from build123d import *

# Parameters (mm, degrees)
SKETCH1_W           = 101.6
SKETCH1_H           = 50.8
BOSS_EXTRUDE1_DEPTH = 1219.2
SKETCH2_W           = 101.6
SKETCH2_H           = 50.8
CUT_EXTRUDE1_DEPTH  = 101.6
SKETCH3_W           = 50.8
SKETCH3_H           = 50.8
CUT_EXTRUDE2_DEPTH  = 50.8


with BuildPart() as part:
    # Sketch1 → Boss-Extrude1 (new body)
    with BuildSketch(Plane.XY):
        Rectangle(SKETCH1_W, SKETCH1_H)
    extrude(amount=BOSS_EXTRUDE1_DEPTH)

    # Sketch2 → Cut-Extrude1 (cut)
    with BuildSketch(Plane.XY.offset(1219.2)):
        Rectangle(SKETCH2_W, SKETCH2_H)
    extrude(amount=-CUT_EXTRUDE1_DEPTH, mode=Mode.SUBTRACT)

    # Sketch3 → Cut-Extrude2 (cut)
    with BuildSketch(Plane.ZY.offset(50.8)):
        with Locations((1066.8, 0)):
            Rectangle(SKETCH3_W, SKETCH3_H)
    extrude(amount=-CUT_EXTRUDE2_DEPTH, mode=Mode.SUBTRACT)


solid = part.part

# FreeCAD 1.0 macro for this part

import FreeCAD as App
import Part
import Sketcher
Q = App.Units.Quantity

doc = App.newDocument("Part")
body = doc.addObject("PartDesign::Body", "Body")

# Sketch on XY plane
sketch1 = body.newObject("Sketcher::SketchObject", "Sketch")
sketch1.AttachmentSupport = (doc.getObject("XY_Plane"), [""])
sketch1.MapMode = "FlatFace"
sketch1.addGeometry([
    Part.LineSegment(App.Vector(-50.8, 25.4, 0), App.Vector(-50.8, -25.4, 0)),
    Part.LineSegment(App.Vector(-50.8, -25.4, 0), App.Vector(50.8, -25.4, 0)),
    Part.LineSegment(App.Vector(50.8, -25.4, 0), App.Vector(50.8, 25.4, 0)),
    Part.LineSegment(App.Vector(50.8, 25.4, 0), App.Vector(-50.8, 25.4, 0)),
], False)
sketch1.addConstraint([
    Sketcher.Constraint("Coincident", 0, 2, 1, 1),
    Sketcher.Constraint("Coincident", 1, 2, 2, 1),
    Sketcher.Constraint("Coincident", 2, 2, 3, 1),
    Sketcher.Constraint("Coincident", 3, 2, 0, 1),
    Sketcher.Constraint("Vertical", 0),
    Sketcher.Constraint("Horizontal", 1),
    Sketcher.Constraint("Vertical", 2),
    Sketcher.Constraint("Horizontal", 3),
    Sketcher.Constraint("Symmetric", 0, 2, 2, 2, -1, 1),
    Sketcher.Constraint("DistanceX", 1, 1, 1, 2, Q("4 in")),
    Sketcher.Constraint("DistanceY", 0, 2, 0, 1, Q("2 in")),
])
pad1 = body.newObject("PartDesign::Pad", "Pad")
pad1.Profile = sketch1
pad1.Length = Q("48 in")

# Sketch on XY plane
sketch2 = body.newObject("Sketcher::SketchObject", "Sketch001")
sketch2.AttachmentSupport = (doc.getObject("XY_Plane"), [""])
sketch2.MapMode = "FlatFace"
sketch2.AttachmentOffset = App.Placement(App.Vector(0, 0, 48 * 25.4), App.Rotation())
sketch2.addGeometry([
    Part.LineSegment(App.Vector(-50.8, 25.4, 0), App.Vector(-50.8, -25.4, 0)),
    Part.LineSegment(App.Vector(-50.8, -25.4, 0), App.Vector(50.8, -25.4, 0)),
    Part.LineSegment(App.Vector(50.8, -25.4, 0), App.Vector(50.8, 25.4, 0)),
    Part.LineSegment(App.Vector(50.8, 25.4, 0), App.Vector(-50.8, 25.4, 0)),
], False)
sketch2.addConstraint([
    Sketcher.Constraint("Coincident", 0, 2, 1, 1),
    Sketcher.Constraint("Coincident", 1, 2, 2, 1),
    Sketcher.Constraint("Coincident", 2, 2, 3, 1),
    Sketcher.Constraint("Coincident", 3, 2, 0, 1),
    Sketcher.Constraint("Vertical", 0),
    Sketcher.Constraint("Horizontal", 1),
    Sketcher.Constraint("Vertical", 2),
    Sketcher.Constraint("Horizontal", 3),
    Sketcher.Constraint("Symmetric", 0, 2, 2, 2, -1, 1),
    Sketcher.Constraint("DistanceX", 1, 1, 1, 2, Q("4 in")),
    Sketcher.Constraint("DistanceY", 0, 2, 0, 1, Q("2 in")),
])
pocket1 = body.newObject("PartDesign::Pocket", "Pocket")
pocket1.Profile = sketch2
pocket1.Length = Q("4 in")

# Sketch on YZ plane
sketch3 = body.newObject("Sketcher::SketchObject", "Sketch002")
sketch3.AttachmentSupport = (doc.getObject("YZ_Plane"), [""])
sketch3.MapMode = "FlatFace"
sketch3.AttachmentOffset = App.Placement(App.Vector(0, 0, -2 * 25.4), App.Rotation())
sketch3.addGeometry([
    Part.LineSegment(App.Vector(25.4, 1041.4, 0), App.Vector(-25.4, 1041.4, 0)),
    Part.LineSegment(App.Vector(-25.4, 1041.4, 0), App.Vector(-25.4, 1092.2, 0)),
    Part.LineSegment(App.Vector(-25.4, 1092.2, 0), App.Vector(25.4, 1092.2, 0)),
    Part.LineSegment(App.Vector(25.4, 1092.2, 0), App.Vector(25.4, 1041.4, 0)),
], False)
sketch3.addConstraint([
    Sketcher.Constraint("Coincident", 0, 2, 1, 1),
    Sketcher.Constraint("Coincident", 1, 2, 2, 1),
    Sketcher.Constraint("Coincident", 2, 2, 3, 1),
    Sketcher.Constraint("Coincident", 3, 2, 0, 1),
    Sketcher.Constraint("Horizontal", 0),
    Sketcher.Constraint("Vertical", 1),
    Sketcher.Constraint("Horizontal", 2),
    Sketcher.Constraint("Vertical", 3),
    Sketcher.Constraint("Equal", 2, 1),
    Sketcher.Constraint("DistanceX", 0, 2, 0, 1, Q("2 in")),
    Sketcher.Constraint("DistanceX", 0, 2, -1, 1, Q("1 in")),
    Sketcher.Constraint("DistanceY", -1, 1, 0, 2, Q("41 in")),
])
pocket2 = body.newObject("PartDesign::Pocket", "Pocket001")
pocket2.Profile = sketch3
pocket2.Length = Q("2 in")
pocket2.Reversed = True

doc.recompute()
